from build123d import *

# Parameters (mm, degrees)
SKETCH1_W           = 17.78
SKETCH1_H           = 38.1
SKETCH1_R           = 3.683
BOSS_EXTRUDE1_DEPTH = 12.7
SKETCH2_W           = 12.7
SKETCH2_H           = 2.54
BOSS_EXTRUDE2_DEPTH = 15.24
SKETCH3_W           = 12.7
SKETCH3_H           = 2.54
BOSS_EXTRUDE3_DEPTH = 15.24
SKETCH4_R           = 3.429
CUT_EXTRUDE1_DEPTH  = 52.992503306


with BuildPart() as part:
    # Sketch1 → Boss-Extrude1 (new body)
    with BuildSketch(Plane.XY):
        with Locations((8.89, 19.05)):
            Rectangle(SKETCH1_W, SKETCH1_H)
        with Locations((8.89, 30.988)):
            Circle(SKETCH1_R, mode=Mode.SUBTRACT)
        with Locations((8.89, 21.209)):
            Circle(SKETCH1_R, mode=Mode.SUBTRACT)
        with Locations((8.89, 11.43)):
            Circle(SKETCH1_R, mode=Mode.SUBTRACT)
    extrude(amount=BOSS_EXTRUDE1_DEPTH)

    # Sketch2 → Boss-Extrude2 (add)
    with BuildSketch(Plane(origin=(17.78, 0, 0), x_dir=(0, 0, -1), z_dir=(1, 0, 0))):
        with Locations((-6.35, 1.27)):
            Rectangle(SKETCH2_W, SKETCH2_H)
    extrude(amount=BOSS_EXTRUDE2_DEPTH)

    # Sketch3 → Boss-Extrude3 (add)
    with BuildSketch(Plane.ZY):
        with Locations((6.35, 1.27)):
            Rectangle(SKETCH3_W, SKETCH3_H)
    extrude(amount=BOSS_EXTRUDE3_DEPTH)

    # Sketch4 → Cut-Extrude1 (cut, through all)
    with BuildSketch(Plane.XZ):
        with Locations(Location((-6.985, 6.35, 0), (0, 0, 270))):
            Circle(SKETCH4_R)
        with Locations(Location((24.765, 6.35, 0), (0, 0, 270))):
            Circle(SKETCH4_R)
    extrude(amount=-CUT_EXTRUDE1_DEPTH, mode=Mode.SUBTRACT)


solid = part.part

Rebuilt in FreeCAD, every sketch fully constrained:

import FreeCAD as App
import Part
import Sketcher

V = App.Vector
Q = App.Units.Quantity


def add_polygon(sketch, points):
    """Adds a closed chain of lines whose ends are joined by coincident constraints."""
    first, n = sketch.GeometryCount, len(points)
    for a, b in zip(points, points[1:] + points[:1]):
        sketch.addGeometry(Part.LineSegment(App.Vector(*a, 0), App.Vector(*b, 0)), False)
    for i in range(n):
        sketch.addConstraint(Sketcher.Constraint("Coincident", first + i, 2, first + (i + 1) % n, 1))

doc = App.newDocument("Part")
body = doc.addObject("PartDesign::Body", "Body")

# Sketch on XY plane
sketch1 = body.newObject("Sketcher::SketchObject", "Sketch")
sketch1.AttachmentSupport = (doc.getObject("XY_Plane"), [""])
sketch1.MapMode = "FlatFace"
add_polygon(sketch1, [(0, 38.1), (0, 0), (17.8, 0), (17.8, 38.1)])  # lines 0-3
sketch1.addGeometry(Part.Circle(V(8.9, 11.4, 0), V(0, 0, 1), 3.7), False)  # 4
sketch1.addGeometry(Part.Circle(V(8.9, 21.2, 0), V(0, 0, 1), 3.7), False)  # 5
sketch1.addGeometry(Part.Circle(V(8.9, 31, 0), V(0, 0, 1), 3.7), False)  # 6
sketch1.addConstraint([
    Sketcher.Constraint("Vertical", 0),
    Sketcher.Constraint("Horizontal", 1),
    Sketcher.Constraint("Vertical", 2),
    Sketcher.Constraint("Horizontal", 3),
    Sketcher.Constraint("Coincident", 0, 2, -1, 1),
    Sketcher.Constraint("Equal", 4, 5),
    Sketcher.Constraint("Equal", 5, 6),
    Sketcher.Constraint("Vertical", 4, 3, 5, 3),
    Sketcher.Constraint("Vertical", 5, 3, 6, 3),
    Sketcher.Constraint("Diameter", 4, Q("0.29 in")),
    Sketcher.Constraint("DistanceX", 1, 1, 1, 2, Q("0.7 in")),
    Sketcher.Constraint("DistanceY", 0, 2, 0, 1, Q("1.5 in")),
    Sketcher.Constraint("DistanceX", -1, 1, 4, 3, Q("0.35 in")),
    Sketcher.Constraint("DistanceY", -1, 1, 4, 3, Q("0.45 in")),
    Sketcher.Constraint("DistanceY", -1, 1, 6, 3, Q("1.22 in")),
    Sketcher.Constraint("DistanceY", -1, 1, 5, 3, Q("0.835 in")),
])
pad1 = body.newObject("PartDesign::Pad", "Pad")
pad1.Profile = sketch1
pad1.Length = Q("0.5 in")

# Sketch on YZ plane
sketch2 = body.newObject("Sketcher::SketchObject", "Sketch001")
sketch2.AttachmentSupport = (doc.getObject("YZ_Plane"), [""])
sketch2.MapMode = "FlatFace"
sketch2.AttachmentOffset = App.Placement(V(0, 0, 0.7 * 25.4), App.Rotation())
add_polygon(sketch2, [(2.5, 12.7), (0, 12.7), (0, 0), (2.5, 0)])  # lines 0-3
sketch2.addConstraint([
    Sketcher.Constraint("Horizontal", 0),
    Sketcher.Constraint("Vertical", 1),
    Sketcher.Constraint("Horizontal", 2),
    Sketcher.Constraint("Vertical", 3),
    Sketcher.Constraint("Coincident", 1, 2, -1, 1),
    Sketcher.Constraint("DistanceX", 0, 2, 0, 1, Q("0.1 in")),
    Sketcher.Constraint("DistanceY", 1, 2, 1, 1, Q("0.5 in")),
])
pad2 = body.newObject("PartDesign::Pad", "Pad001")
pad2.Profile = sketch2
pad2.Length = Q("0.6 in")

# Sketch on YZ plane
sketch3 = body.newObject("Sketcher::SketchObject", "Sketch002")
sketch3.AttachmentSupport = (doc.getObject("YZ_Plane"), [""])
sketch3.MapMode = "FlatFace"
add_polygon(sketch3, [(2.5, 0), (0, 0), (0, 12.7), (2.5, 12.7)])  # lines 0-3
sketch3.addConstraint([
    Sketcher.Constraint("Horizontal", 0),
    Sketcher.Constraint("Vertical", 1),
    Sketcher.Constraint("Horizontal", 2),
    Sketcher.Constraint("Vertical", 3),
    Sketcher.Constraint("Coincident", 0, 2, -1, 1),
    Sketcher.Constraint("DistanceX", 0, 2, 0, 1, Q("0.1 in")),
    Sketcher.Constraint("DistanceY", 1, 1, 1, 2, Q("0.5 in")),
])
pad3 = body.newObject("PartDesign::Pad", "Pad002")
pad3.Profile = sketch3
pad3.Length = Q("0.6 in")
pad3.Reversed = True

# Sketch on XZ plane
sketch4 = body.newObject("Sketcher::SketchObject", "Sketch003")
sketch4.AttachmentSupport = (doc.getObject("XZ_Plane"), [""])
sketch4.MapMode = "FlatFace"
sketch4.addGeometry([
    Part.Circle(V(-7, 6.3, 0), V(0, 0, 1), 3.4),
    Part.Circle(V(24.8, 6.3, 0), V(0, 0, 1), 3.4),
], False)
sketch4.addConstraint([
    Sketcher.Constraint("Equal", 0, 1),
    Sketcher.Constraint("Horizontal", 0, 3, 1, 3),
    Sketcher.Constraint("Diameter", 0, Q("0.27 in")),
    Sketcher.Constraint("DistanceY", -1, 1, 0, 3, Q("0.25 in")),
    Sketcher.Constraint("DistanceX", 0, 3, 1, 3, Q("1.25 in")),
    Sketcher.Constraint("DistanceX", 0, 3, -1, 1, Q("0.275 in")),
])
pocket1 = body.newObject("PartDesign::Pocket", "Pocket")
pocket1.Profile = sketch4
pocket1.Type = "ThroughAll"

doc.recompute()
